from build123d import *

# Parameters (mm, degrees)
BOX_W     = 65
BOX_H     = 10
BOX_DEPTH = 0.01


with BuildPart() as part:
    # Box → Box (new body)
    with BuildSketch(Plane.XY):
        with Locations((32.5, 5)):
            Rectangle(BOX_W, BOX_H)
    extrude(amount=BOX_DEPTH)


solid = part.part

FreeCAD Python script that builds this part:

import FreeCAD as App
import Part
import Sketcher

V = App.Vector

doc = App.newDocument("Part")
params = doc.addObject("Spreadsheet::Sheet", "Params")
for row, (alias, value) in enumerate([
    ("sketch1_width", "65 mm"),
    ("sketch1_height", "10 mm"),
    ("pad1_length", "0.01 mm"),
], start=1):
    params.set(f"A{row}", alias)
    params.set(f"B{row}", "=" + value)
    params.setAlias(f"B{row}", alias)

body = doc.addObject("PartDesign::Body", "Body")

sketch1 = body.newObject("Sketcher::SketchObject", "Sketch")
sketch1.AttachmentSupport = (doc.getObject("XY_Plane"), [""])
sketch1.MapMode = "FlatFace"
sketch1.addGeometry([
    Part.LineSegment(V(0, 10, 0), V(0, 0, 0)),
    Part.LineSegment(V(0, 0, 0), V(65, 0, 0)),
    Part.LineSegment(V(65, 0, 0), V(65, 10, 0)),
    Part.LineSegment(V(65, 10, 0), V(0, 10, 0)),
], False)
sketch1.addConstraint([
    Sketcher.Constraint("Coincident", 0, 2, 1, 1),
    Sketcher.Constraint("Coincident", 1, 2, 2, 1),
    Sketcher.Constraint("Coincident", 2, 2, 3, 1),
    Sketcher.Constraint("Coincident", 3, 2, 0, 1),
    Sketcher.Constraint("Vertical", 0),
    Sketcher.Constraint("Horizontal", 1),
    Sketcher.Constraint("Vertical", 2),
    Sketcher.Constraint("Horizontal", 3),
    Sketcher.Constraint("Coincident", 0, 2, -1, 1),
    Sketcher.Constraint("DistanceX", 1, 1, 1, 2, 65.0),
    Sketcher.Constraint("DistanceY", 0, 2, 0, 1, 10.0),
])
sketch1.setExpression("Constraints[9]", "Params.sketch1_width")
sketch1.setExpression("Constraints[10]", "Params.sketch1_height")
pad1 = body.newObject("PartDesign::Pad", "Pad")
pad1.Profile = sketch1
pad1.setExpression("Length", "Params.pad1_length")

doc.recompute()
